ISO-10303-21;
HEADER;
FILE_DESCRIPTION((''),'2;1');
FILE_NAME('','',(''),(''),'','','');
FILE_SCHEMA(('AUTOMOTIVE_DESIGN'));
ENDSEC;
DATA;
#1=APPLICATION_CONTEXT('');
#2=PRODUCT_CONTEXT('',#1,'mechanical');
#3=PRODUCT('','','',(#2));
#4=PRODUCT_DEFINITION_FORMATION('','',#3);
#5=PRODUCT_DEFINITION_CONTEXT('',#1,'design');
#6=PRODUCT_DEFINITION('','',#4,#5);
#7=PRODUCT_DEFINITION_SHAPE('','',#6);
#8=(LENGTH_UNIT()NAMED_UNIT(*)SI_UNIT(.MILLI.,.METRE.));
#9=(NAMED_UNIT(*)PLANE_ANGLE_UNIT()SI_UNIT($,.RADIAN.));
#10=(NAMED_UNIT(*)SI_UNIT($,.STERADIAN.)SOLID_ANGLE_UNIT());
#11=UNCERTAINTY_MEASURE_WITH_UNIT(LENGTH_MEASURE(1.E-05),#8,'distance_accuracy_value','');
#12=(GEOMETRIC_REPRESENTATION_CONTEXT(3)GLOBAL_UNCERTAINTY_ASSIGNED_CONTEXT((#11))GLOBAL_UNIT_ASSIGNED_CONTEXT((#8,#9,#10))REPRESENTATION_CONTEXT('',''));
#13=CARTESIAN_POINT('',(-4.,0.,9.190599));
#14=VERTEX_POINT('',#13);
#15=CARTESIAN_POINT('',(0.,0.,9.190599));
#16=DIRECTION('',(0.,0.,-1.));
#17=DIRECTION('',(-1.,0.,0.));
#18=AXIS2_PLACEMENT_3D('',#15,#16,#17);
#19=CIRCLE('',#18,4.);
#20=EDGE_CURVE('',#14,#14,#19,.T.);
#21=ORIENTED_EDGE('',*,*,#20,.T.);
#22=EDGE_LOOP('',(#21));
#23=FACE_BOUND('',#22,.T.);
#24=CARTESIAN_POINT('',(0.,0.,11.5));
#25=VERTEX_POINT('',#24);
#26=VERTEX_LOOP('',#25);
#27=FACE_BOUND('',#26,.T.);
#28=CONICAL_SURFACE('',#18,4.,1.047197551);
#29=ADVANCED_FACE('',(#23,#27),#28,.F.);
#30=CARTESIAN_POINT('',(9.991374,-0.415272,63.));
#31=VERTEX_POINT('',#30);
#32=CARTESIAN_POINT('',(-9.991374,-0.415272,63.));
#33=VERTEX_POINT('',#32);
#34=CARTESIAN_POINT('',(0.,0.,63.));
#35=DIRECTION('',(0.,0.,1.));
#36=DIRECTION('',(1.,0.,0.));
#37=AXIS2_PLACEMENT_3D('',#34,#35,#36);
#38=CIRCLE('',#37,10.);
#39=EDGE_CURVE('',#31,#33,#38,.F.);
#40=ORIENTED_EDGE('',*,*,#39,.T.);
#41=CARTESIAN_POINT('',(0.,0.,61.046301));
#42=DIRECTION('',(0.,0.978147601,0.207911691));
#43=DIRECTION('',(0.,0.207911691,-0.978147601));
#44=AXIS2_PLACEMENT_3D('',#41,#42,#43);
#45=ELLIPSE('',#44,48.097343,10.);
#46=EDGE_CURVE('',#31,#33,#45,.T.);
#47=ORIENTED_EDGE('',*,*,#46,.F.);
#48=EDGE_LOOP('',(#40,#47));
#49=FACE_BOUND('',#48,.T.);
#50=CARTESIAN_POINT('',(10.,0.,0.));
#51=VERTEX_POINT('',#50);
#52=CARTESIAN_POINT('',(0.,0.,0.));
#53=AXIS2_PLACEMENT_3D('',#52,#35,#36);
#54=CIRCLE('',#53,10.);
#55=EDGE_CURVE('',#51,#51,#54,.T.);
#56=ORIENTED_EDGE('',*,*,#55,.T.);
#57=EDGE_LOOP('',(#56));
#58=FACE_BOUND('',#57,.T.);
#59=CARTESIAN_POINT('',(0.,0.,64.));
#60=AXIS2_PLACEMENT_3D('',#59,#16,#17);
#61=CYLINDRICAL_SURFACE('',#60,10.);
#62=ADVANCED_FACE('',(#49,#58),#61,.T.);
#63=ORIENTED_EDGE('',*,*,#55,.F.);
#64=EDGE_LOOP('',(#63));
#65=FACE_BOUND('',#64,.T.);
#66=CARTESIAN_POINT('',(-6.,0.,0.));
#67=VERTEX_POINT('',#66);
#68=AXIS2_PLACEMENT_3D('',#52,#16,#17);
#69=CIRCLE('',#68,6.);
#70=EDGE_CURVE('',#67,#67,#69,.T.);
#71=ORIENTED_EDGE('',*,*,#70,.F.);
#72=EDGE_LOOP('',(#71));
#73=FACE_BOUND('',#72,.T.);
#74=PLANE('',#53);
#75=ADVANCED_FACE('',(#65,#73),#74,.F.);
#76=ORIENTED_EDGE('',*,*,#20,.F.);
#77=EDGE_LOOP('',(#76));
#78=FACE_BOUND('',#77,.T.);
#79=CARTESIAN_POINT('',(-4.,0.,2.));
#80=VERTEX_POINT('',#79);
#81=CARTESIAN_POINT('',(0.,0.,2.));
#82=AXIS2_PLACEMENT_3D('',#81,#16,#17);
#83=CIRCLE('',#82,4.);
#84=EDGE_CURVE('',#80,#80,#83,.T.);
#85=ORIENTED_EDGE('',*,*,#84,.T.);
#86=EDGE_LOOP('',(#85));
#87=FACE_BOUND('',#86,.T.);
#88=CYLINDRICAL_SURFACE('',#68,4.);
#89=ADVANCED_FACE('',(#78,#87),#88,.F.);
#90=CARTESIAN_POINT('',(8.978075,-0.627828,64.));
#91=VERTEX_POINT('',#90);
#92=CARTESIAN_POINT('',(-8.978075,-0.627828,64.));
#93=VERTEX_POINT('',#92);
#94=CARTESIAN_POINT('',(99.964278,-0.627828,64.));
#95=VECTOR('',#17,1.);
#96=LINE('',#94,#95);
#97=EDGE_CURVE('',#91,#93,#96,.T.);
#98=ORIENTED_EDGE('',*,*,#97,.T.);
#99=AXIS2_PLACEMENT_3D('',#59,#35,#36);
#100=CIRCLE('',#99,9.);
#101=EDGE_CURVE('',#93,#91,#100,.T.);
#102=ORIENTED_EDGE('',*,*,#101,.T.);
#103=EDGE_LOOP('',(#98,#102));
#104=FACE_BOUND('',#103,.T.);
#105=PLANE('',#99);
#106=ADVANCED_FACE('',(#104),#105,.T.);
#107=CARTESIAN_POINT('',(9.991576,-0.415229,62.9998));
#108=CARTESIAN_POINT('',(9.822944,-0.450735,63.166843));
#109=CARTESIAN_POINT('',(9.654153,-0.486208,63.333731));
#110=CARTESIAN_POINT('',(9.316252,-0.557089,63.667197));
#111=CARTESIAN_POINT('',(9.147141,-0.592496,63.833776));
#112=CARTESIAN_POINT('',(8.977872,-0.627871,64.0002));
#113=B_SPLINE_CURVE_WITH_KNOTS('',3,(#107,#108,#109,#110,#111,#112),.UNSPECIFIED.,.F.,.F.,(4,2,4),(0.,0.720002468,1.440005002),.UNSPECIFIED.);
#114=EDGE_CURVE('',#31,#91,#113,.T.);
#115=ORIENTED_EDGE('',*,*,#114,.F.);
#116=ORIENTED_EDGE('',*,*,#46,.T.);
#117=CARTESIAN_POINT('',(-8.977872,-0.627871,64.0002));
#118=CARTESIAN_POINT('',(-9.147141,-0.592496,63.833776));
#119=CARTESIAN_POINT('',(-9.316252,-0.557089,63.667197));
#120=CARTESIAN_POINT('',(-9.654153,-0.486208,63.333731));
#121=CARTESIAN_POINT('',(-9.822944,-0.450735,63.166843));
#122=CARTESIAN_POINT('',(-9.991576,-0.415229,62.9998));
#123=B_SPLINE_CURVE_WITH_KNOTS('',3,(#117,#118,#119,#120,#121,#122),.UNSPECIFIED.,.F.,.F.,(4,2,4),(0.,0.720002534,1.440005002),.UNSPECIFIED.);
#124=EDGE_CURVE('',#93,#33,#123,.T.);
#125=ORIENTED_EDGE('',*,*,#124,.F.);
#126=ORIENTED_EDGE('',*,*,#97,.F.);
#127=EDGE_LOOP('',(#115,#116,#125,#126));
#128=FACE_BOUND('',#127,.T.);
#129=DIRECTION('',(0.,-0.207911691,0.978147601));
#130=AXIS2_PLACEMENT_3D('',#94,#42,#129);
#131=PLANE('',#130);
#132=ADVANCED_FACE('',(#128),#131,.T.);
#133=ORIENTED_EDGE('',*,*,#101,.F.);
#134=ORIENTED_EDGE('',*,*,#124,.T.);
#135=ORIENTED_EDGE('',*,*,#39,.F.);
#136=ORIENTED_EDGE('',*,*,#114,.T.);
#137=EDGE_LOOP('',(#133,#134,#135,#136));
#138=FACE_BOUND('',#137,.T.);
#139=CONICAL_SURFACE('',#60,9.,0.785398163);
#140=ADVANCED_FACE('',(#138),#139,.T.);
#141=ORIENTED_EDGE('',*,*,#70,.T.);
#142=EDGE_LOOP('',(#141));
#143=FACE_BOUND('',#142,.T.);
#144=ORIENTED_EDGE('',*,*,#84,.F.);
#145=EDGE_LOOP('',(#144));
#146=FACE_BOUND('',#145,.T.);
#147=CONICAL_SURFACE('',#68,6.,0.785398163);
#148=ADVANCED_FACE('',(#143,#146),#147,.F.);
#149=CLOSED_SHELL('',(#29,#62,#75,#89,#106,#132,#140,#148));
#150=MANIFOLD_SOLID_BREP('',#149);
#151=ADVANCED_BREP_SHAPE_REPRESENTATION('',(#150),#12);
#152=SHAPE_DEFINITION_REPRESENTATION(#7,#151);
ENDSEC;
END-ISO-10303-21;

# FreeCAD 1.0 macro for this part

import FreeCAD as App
import Part
import Sketcher
from FreeCAD import Vector
Q = App.Units.Quantity


def edges_at(feature, points):
    """Names of the edges that pass closest to the given points."""
    edges = feature.Shape.Edges
    near = lambda p: min(range(len(edges)), key=lambda i: edges[i].distToShape(Part.Vertex(*p))[0])
    return sorted({f"Edge{near(p) + 1}" for p in points})


def add_polygon(sketch, points):
    """Adds a closed chain of lines whose ends are joined by coincident constraints."""
    first, n = sketch.GeometryCount, len(points)
    for a, b in zip(points, points[1:] + points[:1]):
        sketch.addGeometry(Part.LineSegment(App.Vector(*a, 0), App.Vector(*b, 0)), False)
    for i in range(n):
        sketch.addConstraint(Sketcher.Constraint("Coincident", first + i, 2, first + (i + 1) % n, 1))

doc = App.newDocument("Part")
body = doc.addObject("PartDesign::Body", "Body")

# Sketch on XY plane
sketch1 = body.newObject("Sketcher::SketchObject", "Sketch")
sketch1.AttachmentSupport = (doc.getObject("XY_Plane"), [""])
sketch1.MapMode = "FlatFace"
sketch1.addGeometry(Part.Circle(Vector(0, 0, 0), Vector(0, 0, 1), 10), False)
sketch1.addConstraint([
    Sketcher.Constraint("Coincident", 0, 3, -1, 1),
    Sketcher.Constraint("Diameter", 0, 20.0),
])
pad1 = body.newObject("PartDesign::Pad", "Pad")
pad1.Profile = sketch1
pad1.Length = 64
doc.recompute()

chamfer = body.newObject("PartDesign::Chamfer", "Chamfer")
chamfer.Base = (pad1, edges_at(pad1, [(-10, 0, 64)]))
chamfer.Size = 1

# Sketch on YZ plane
sketch2 = body.newObject("Sketcher::SketchObject", "Sketch001")
sketch2.AttachmentSupport = (doc.getObject("YZ_Plane"), [""])
sketch2.MapMode = "FlatFace"
add_polygon(sketch2, [(-30, 201), (-1, 64), (10, 14), (39, -123), (312, -65), (244, 259)])  # lines 0-5
sketch2.addConstraint([
    Sketcher.Constraint("Parallel", 0, 1),
    Sketcher.Constraint("Parallel", 1, 2),
    Sketcher.Constraint("Perpendicular", 2, 3),
    Sketcher.Constraint("Perpendicular", 3, 4),
    Sketcher.Constraint("Perpendicular", 4, 5),
    Sketcher.Constraint("Equal", 0, 2),
    Sketcher.Constraint("Angle", 0, Q("-78 deg")),
    Sketcher.Constraint("DistanceY", -1, 1, 0, 2, 64.0),
    Sketcher.Constraint("DistanceX", -1, 1, 1, 2, 10.0),
    Sketcher.Constraint("DistanceY", -1, 1, 1, 2, 14.0),
    Sketcher.Constraint("DistanceY", 2, 2, -1, 1, 122.698918),
    Sketcher.Constraint("DistanceX", -1, 1, 3, 2, 312.454088),
])
pocket1 = body.newObject("PartDesign::Pocket", "Pocket")
pocket1.Profile = sketch2
pocket1.Type = "ThroughAll"
pocket1.Midplane = True

# Sketch on XY plane
sketch3 = body.newObject("Sketcher::SketchObject", "Sketch002")
sketch3.AttachmentSupport = (doc.getObject("XY_Plane"), [""])
sketch3.MapMode = "FlatFace"
sketch3.addGeometry(Part.Circle(Vector(0, 0, 0), Vector(0, 0, 1), 4), False)
sketch3.addConstraint([
    Sketcher.Constraint("Coincident", 0, 3, -1, 1),
    Sketcher.Constraint("Diameter", 0, 8.0),
])
doc.recompute()
hole = body.newObject("PartDesign::Hole", "Hole")
hole.Profile = sketch3
hole.ThreadType = "None"
hole.Diameter = 8
hole.DepthType = "Dimension"
hole.Depth = 9.190599
hole.DrillPoint = "Angled"
hole.DrillPointAngle = 120
hole.HoleCutType = "Countersink"
hole.HoleCutDiameter = 12
hole.HoleCutCountersinkAngle = 90
hole.Reversed = True

doc.recompute()
